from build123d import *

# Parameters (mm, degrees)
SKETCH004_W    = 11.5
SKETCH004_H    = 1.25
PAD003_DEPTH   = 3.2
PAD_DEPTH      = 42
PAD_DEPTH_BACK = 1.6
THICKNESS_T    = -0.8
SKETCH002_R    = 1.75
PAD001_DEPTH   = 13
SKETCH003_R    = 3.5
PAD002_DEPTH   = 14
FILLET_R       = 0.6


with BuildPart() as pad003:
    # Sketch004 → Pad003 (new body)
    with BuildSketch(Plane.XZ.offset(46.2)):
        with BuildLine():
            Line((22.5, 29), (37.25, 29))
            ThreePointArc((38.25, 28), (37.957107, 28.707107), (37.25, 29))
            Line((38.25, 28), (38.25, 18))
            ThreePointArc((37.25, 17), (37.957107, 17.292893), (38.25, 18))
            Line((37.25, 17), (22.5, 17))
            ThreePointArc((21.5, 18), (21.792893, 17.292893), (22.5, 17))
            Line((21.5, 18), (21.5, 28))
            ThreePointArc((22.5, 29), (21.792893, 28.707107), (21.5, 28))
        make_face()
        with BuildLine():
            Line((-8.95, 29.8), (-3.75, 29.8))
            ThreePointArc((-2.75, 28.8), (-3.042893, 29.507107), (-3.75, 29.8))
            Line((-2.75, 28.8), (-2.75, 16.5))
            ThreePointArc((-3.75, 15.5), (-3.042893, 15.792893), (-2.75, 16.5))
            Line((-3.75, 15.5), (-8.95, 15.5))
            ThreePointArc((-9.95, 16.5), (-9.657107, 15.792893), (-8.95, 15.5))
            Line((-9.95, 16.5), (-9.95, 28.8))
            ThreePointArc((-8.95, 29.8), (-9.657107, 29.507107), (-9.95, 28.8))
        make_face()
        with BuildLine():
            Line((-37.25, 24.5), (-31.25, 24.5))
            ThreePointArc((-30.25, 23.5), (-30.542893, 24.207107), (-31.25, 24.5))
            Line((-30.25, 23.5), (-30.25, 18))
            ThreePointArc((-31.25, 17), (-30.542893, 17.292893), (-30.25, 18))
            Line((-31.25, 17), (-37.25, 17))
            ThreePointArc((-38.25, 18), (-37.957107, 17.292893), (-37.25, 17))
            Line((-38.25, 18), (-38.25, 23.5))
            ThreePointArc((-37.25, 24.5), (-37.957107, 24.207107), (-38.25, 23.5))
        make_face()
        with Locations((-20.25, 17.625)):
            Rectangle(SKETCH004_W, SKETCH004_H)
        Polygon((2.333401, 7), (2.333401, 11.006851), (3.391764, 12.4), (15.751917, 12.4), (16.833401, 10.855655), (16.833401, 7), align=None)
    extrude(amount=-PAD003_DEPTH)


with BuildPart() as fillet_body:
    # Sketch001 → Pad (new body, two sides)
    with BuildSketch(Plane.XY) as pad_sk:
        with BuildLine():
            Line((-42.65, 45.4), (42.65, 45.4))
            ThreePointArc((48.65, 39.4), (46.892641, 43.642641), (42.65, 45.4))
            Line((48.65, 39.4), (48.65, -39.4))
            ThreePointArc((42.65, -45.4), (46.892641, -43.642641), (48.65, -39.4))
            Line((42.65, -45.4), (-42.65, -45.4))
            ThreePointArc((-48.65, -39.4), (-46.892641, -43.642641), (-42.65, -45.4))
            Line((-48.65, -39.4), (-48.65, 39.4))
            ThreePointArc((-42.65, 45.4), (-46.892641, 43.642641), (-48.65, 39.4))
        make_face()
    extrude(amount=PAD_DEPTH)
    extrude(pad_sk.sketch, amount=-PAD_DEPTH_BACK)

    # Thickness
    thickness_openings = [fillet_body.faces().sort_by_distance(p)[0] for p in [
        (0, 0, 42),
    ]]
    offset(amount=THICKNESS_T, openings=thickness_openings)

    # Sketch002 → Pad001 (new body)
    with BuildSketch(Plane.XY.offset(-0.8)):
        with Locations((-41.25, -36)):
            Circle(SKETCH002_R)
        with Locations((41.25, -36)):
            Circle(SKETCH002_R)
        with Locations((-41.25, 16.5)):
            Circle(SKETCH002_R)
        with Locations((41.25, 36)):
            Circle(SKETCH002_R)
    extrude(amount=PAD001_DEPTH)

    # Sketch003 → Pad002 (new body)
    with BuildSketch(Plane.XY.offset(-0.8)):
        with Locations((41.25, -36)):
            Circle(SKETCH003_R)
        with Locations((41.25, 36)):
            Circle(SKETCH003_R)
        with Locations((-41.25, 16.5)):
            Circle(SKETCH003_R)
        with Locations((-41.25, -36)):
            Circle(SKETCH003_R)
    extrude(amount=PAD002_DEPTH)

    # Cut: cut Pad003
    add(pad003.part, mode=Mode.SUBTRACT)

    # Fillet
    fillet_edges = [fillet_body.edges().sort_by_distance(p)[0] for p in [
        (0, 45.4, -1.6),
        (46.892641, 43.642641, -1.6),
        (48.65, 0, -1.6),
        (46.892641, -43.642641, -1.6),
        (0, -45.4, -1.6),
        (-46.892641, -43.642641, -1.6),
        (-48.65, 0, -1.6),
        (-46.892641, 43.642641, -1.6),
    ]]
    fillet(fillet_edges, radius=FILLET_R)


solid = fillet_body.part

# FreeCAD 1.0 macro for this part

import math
import FreeCAD as App
import Part
import Sketcher
Q = App.Units.Quantity


def edges_at(feature, points):
    """Names of the edges that pass closest to the given points."""
    edges = feature.Shape.Edges
    near = lambda p: min(range(len(edges)), key=lambda i: edges[i].distToShape(Part.Vertex(*p))[0])
    return sorted({f"Edge{near(p) + 1}" for p in points})


def faces_at(feature, points):
    """Names of the faces that lie closest to the given points."""
    faces = feature.Shape.Faces
    near = lambda p: min(range(len(faces)), key=lambda i: faces[i].distToShape(Part.Vertex(*p))[0])
    return sorted({f"Face{near(p) + 1}" for p in points})


def add_polygon(sketch, points):
    """Adds a closed chain of lines whose ends are joined by coincident constraints."""
    first, n = sketch.GeometryCount, len(points)
    for a, b in zip(points, points[1:] + points[:1]):
        sketch.addGeometry(Part.LineSegment(App.Vector(*a, 0), App.Vector(*b, 0)), False)
    for i in range(n):
        sketch.addConstraint(Sketcher.Constraint("Coincident", first + i, 2, first + (i + 1) % n, 1))

doc = App.newDocument("Part")
body = doc.addObject("PartDesign::Body", "Body")
body.AllowCompound = True

sketch1 = body.newObject("Sketcher::SketchObject", "Sketch")
sketch1.AttachmentSupport = (doc.getObject("XZ_Plane"), [""])
sketch1.MapMode = "FlatFace"
sketch1.AttachmentOffset = App.Placement(App.Vector(0, 0, 46.2), App.Rotation())
sketch1.addGeometry(Part.LineSegment(App.Vector(37.2, 29, 0), App.Vector(22.5, 29, 0)), False)
sketch1.addGeometry(Part.ArcOfCircle(Part.Circle(App.Vector(22.5, 28, 0), App.Vector(0, 0, 1), 1), math.radians(90), math.radians(180)), False)
sketch1.addGeometry(Part.LineSegment(App.Vector(21.5, 28, 0), App.Vector(21.5, 18, 0)), False)
sketch1.addGeometry(Part.ArcOfCircle(Part.Circle(App.Vector(22.5, 18, 0), App.Vector(0, 0, 1), 1), math.radians(180), math.radians(270)), False)
sketch1.addGeometry(Part.LineSegment(App.Vector(22.5, 17, 0), App.Vector(37.2, 17, 0)), False)
sketch1.addGeometry(Part.ArcOfCircle(Part.Circle(App.Vector(37.3, 18, 0), App.Vector(0, 0, 1), 1), math.radians(-90), math.radians(0)), False)
sketch1.addGeometry(Part.LineSegment(App.Vector(38.2, 18, 0), App.Vector(38.2, 28, 0)), False)
sketch1.addGeometry(Part.ArcOfCircle(Part.Circle(App.Vector(37.3, 28, 0), App.Vector(0, 0, 1), 1), math.radians(0), math.radians(90)), False)
sketch1.addGeometry(Part.LineSegment(App.Vector(-3.8, 29.8, 0), App.Vector(-8.9, 29.8, 0)), False)
sketch1.addGeometry(Part.ArcOfCircle(Part.Circle(App.Vector(-9, 28.8, 0), App.Vector(0, 0, 1), 1), math.radians(90), math.radians(180)), False)
sketch1.addGeometry(Part.LineSegment(App.Vector(-9.9, 28.8, 0), App.Vector(-9.9, 16.5, 0)), False)
sketch1.addGeometry(Part.ArcOfCircle(Part.Circle(App.Vector(-9, 16.5, 0), App.Vector(0, 0, 1), 1), math.radians(180), math.radians(270)), False)
sketch1.addGeometry(Part.LineSegment(App.Vector(-8.9, 15.5, 0), App.Vector(-3.8, 15.5, 0)), False)
sketch1.addGeometry(Part.ArcOfCircle(Part.Circle(App.Vector(-3.7, 16.5, 0), App.Vector(0, 0, 1), 1), math.radians(-90), math.radians(0)), False)
sketch1.addGeometry(Part.LineSegment(App.Vector(-2.8, 16.5, 0), App.Vector(-2.8, 28.8, 0)), False)
sketch1.addGeometry(Part.ArcOfCircle(Part.Circle(App.Vector(-3.7, 28.8, 0), App.Vector(0, 0, 1), 1), math.radians(0), math.radians(90)), False)
sketch1.addGeometry(Part.LineSegment(App.Vector(-31.2, 24.5, 0), App.Vector(-37.2, 24.5, 0)), False)
sketch1.addGeometry(Part.ArcOfCircle(Part.Circle(App.Vector(-37.3, 23.5, 0), App.Vector(0, 0, 1), 1), math.radians(90), math.radians(180)), False)
sketch1.addGeometry(Part.LineSegment(App.Vector(-38.2, 23.5, 0), App.Vector(-38.2, 18, 0)), False)
sketch1.addGeometry(Part.ArcOfCircle(Part.Circle(App.Vector(-37.3, 18, 0), App.Vector(0, 0, 1), 1), math.radians(180), math.radians(270)), False)
sketch1.addGeometry(Part.LineSegment(App.Vector(-37.2, 17, 0), App.Vector(-31.2, 17, 0)), False)
sketch1.addGeometry(Part.ArcOfCircle(Part.Circle(App.Vector(-31.2, 18, 0), App.Vector(0, 0, 1), 1), math.radians(-90), math.radians(0)), False)
sketch1.addGeometry(Part.LineSegment(App.Vector(-30.2, 18, 0), App.Vector(-30.2, 23.5, 0)), False)
sketch1.addGeometry(Part.ArcOfCircle(Part.Circle(App.Vector(-31.2, 23.5, 0), App.Vector(0, 0, 1), 1), math.radians(0), math.radians(90)), False)
add_polygon(sketch1, [(-26, 18.2), (-26, 17), (-14.5, 17), (-14.5, 18.2)])
add_polygon(sketch1, [(2.3, 11), (2.3, 7), (16.8, 7), (16.8, 10.9), (15.8, 12.4), (3.4, 12.4)])
sketch1.addConstraint([
    Sketcher.Constraint("Tangent", 0, 2, 1, 1),
    Sketcher.Constraint("Tangent", 1, 2, 2, 1),
    Sketcher.Constraint("Tangent", 2, 2, 3, 1),
    Sketcher.Constraint("Tangent", 3, 2, 4, 1),
    Sketcher.Constraint("Tangent", 4, 2, 5, 1),
    Sketcher.Constraint("Tangent", 5, 2, 6, 1),
    Sketcher.Constraint("Tangent", 6, 2, 7, 1),
    Sketcher.Constraint("Tangent", 7, 2, 0, 1),
    Sketcher.Constraint("Tangent", 8, 2, 9, 1),
    Sketcher.Constraint("Tangent", 9, 2, 10, 1),
    Sketcher.Constraint("Tangent", 10, 2, 11, 1),
    Sketcher.Constraint("Tangent", 11, 2, 12, 1),
    Sketcher.Constraint("Tangent", 12, 2, 13, 1),
    Sketcher.Constraint("Tangent", 13, 2, 14, 1),
    Sketcher.Constraint("Tangent", 14, 2, 15, 1),
    Sketcher.Constraint("Tangent", 15, 2, 8, 1),
    Sketcher.Constraint("Tangent", 16, 2, 17, 1),
    Sketcher.Constraint("Tangent", 17, 2, 18, 1),
    Sketcher.Constraint("Tangent", 18, 2, 19, 1),
    Sketcher.Constraint("Tangent", 19, 2, 20, 1),
    Sketcher.Constraint("Tangent", 20, 2, 21, 1),
    Sketcher.Constraint("Tangent", 21, 2, 22, 1),
    Sketcher.Constraint("Tangent", 22, 2, 23, 1),
    Sketcher.Constraint("Tangent", 23, 2, 16, 1),
    Sketcher.Constraint("Horizontal", 0),
    Sketcher.Constraint("Vertical", 2),
    Sketcher.Constraint("Horizontal", 4),
    Sketcher.Constraint("Vertical", 6),
    Sketcher.Constraint("Horizontal", 8),
    Sketcher.Constraint("Vertical", 10),
    Sketcher.Constraint("Horizontal", 12),
    Sketcher.Constraint("Vertical", 14),
    Sketcher.Constraint("Horizontal", 16),
    Sketcher.Constraint("Vertical", 18),
    Sketcher.Constraint("Horizontal", 20),
    Sketcher.Constraint("Vertical", 22),
    Sketcher.Constraint("Vertical", 24),
    Sketcher.Constraint("Horizontal", 25),
    Sketcher.Constraint("Vertical", 26),
    Sketcher.Constraint("Horizontal", 27),
    Sketcher.Constraint("Vertical", 28),
    Sketcher.Constraint("Horizontal", 29),
    Sketcher.Constraint("Vertical", 30),
    Sketcher.Constraint("Horizontal", 32),
    Sketcher.Constraint("Equal", 1, 3),
    Sketcher.Constraint("Equal", 3, 5),
    Sketcher.Constraint("Equal", 5, 7),
    Sketcher.Constraint("Equal", 7, 9),
    Sketcher.Constraint("Equal", 9, 11),
    Sketcher.Constraint("Equal", 11, 13),
    Sketcher.Constraint("Equal", 13, 15),
    Sketcher.Constraint("Equal", 15, 17),
    Sketcher.Constraint("Equal", 17, 19),
    Sketcher.Constraint("Equal", 19, 21),
    Sketcher.Constraint("Equal", 21, 23),
    Sketcher.Constraint("Symmetric", 5, 3, 19, 3, -2),
    Sketcher.Constraint("Horizontal", 20, 2, 24, 2),
    Sketcher.Constraint("Radius", 1, Q("0.999999 mm")),
    Sketcher.Constraint("DistanceX", 16, 2, 16, 1, Q("6 mm")),
    Sketcher.Constraint("DistanceY", 2, 2, 2, 1, Q("10 mm")),
    Sketcher.Constraint("DistanceX", 8, 2, 8, 1, Q("5.2 mm")),
    Sketcher.Constraint("DistanceX", 25, 1, 25, 2, Q("11.5 mm")),
    Sketcher.Constraint("DistanceX", 29, 1, 29, 2, Q("14.5 mm")),
    Sketcher.Constraint("DistanceY", 10, 2, 10, 1, Q("12.3 mm")),
    Sketcher.Constraint("DistanceY", 18, 2, 18, 1, Q("5.5 mm")),
    Sketcher.Constraint("DistanceY", -1, 1, 1, 3, Q("28.000001 mm")),
    Sketcher.Constraint("DistanceX", 24, 2, -1, 1, Q("26 mm")),
    Sketcher.Constraint("DistanceY", -1, 1, 28, 2, Q("7 mm")),
    Sketcher.Constraint("DistanceX", 13, 3, 5, 3, Q("41 mm")),
    Sketcher.Constraint("DistanceY", 11, 3, 17, 3, Q("7.000001 mm")),
    Sketcher.Constraint("DistanceX", 0, 2, 0, 1, Q("14.75 mm")),
    Sketcher.Constraint("DistanceY", 24, 2, 24, 1, Q("1.25 mm")),
    Sketcher.Constraint("DistanceX", -1, 1, 1, 3, Q("22.499999 mm")),
    Sketcher.Constraint("DistanceY", -1, 1, 31, 2, Q("12.4 mm")),
    Sketcher.Constraint("DistanceY", 28, 2, 28, 1, Q("4.006851 mm")),
    Sketcher.Constraint("DistanceX", -1, 1, 28, 2, Q("2.333401 mm")),
    Sketcher.Constraint("Distance", 33, Q("1.74957 mm")),
    Sketcher.Constraint("DistanceX", 32, 2, 32, 1, Q("12.360153 mm")),
    Sketcher.Constraint("DistanceY", 30, 1, 30, 2, Q("3.855655 mm")),
])
pad1 = body.newObject("PartDesign::Pad", "Pad")
pad1.Profile = sketch1
pad1.Length = 3.2
pad1.Reversed = True
body2 = doc.addObject("PartDesign::Body", "Body001")

sketch2 = body2.newObject("Sketcher::SketchObject", "Sketch001")
sketch2.AttachmentSupport = (doc.getObject("XY_Plane001"), [""])
sketch2.MapMode = "FlatFace"
sketch2.addGeometry([
    Part.LineSegment(App.Vector(43, 45, 0), App.Vector(-43, 45, 0)),
    Part.ArcOfCircle(Part.Circle(App.Vector(-43, 39, 0), App.Vector(0, 0, 1), 6), math.radians(90), math.radians(180)),
    Part.LineSegment(App.Vector(-49, 39, 0), App.Vector(-49, -39, 0)),
    Part.ArcOfCircle(Part.Circle(App.Vector(-43, -39, 0), App.Vector(0, 0, 1), 6), math.radians(180), math.radians(270)),
    Part.LineSegment(App.Vector(-43, -45, 0), App.Vector(43, -45, 0)),
    Part.ArcOfCircle(Part.Circle(App.Vector(43, -39, 0), App.Vector(0, 0, 1), 6), math.radians(-90), math.radians(0)),
    Part.LineSegment(App.Vector(49, -39, 0), App.Vector(49, 39, 0)),
    Part.ArcOfCircle(Part.Circle(App.Vector(43, 39, 0), App.Vector(0, 0, 1), 6), math.radians(0), math.radians(90)),
], False)
sketch2.addConstraint([
    Sketcher.Constraint("Tangent", 0, 2, 1, 1),
    Sketcher.Constraint("Tangent", 1, 2, 2, 1),
    Sketcher.Constraint("Tangent", 2, 2, 3, 1),
    Sketcher.Constraint("Tangent", 3, 2, 4, 1),
    Sketcher.Constraint("Tangent", 4, 2, 5, 1),
    Sketcher.Constraint("Tangent", 5, 2, 6, 1),
    Sketcher.Constraint("Tangent", 6, 2, 7, 1),
    Sketcher.Constraint("Tangent", 7, 2, 0, 1),
    Sketcher.Constraint("Horizontal", 0),
    Sketcher.Constraint("Vertical", 2),
    Sketcher.Constraint("Horizontal", 4),
    Sketcher.Constraint("Vertical", 6),
    Sketcher.Constraint("Equal", 1, 3),
    Sketcher.Constraint("Equal", 3, 5),
    Sketcher.Constraint("Equal", 5, 7),
    Sketcher.Constraint("Symmetric", 1, 3, 5, 3, -1, 1),
    Sketcher.Constraint("Radius", 1, Q("5.999999 mm")),
    Sketcher.Constraint("DistanceX", 0, 2, 0, 1, Q("85.3 mm")),
    Sketcher.Constraint("DistanceY", 2, 2, 2, 1, Q("78.8 mm")),
])
pad2 = body2.newObject("PartDesign::Pad", "Pad001")
pad2.Profile = sketch2
pad2.Type = "TwoLengths"
pad2.Length = 42
pad2.Length2 = 1.6
doc.recompute()

thickness = body2.newObject("PartDesign::Thickness", "Thickness")
thickness.Base = (pad2, faces_at(pad2, [(0, 0, 42)]))
thickness.Value = 0.8
thickness.Reversed = True
thickness.Join = "Arc"

sketch3 = body2.newObject("Sketcher::SketchObject", "Sketch002")
sketch3.AttachmentSupport = (doc.getObject("XY_Plane001"), [""])
sketch3.MapMode = "FlatFace"
sketch3.AttachmentOffset = App.Placement(App.Vector(0, 0, -0.8), App.Rotation())
sketch3.addGeometry([
    Part.Circle(App.Vector(-41.2, -36, 0), App.Vector(0, 0, 1), 1.8),
    Part.Circle(App.Vector(41.2, -36, 0), App.Vector(0, 0, 1), 1.8),
    Part.Circle(App.Vector(-41.2, 16.5, 0), App.Vector(0, 0, 1), 1.8),
    Part.Circle(App.Vector(41.2, 36, 0), App.Vector(0, 0, 1), 1.8),
], False)
sketch3.addConstraint([
    Sketcher.Constraint("Equal", 0, 1),
    Sketcher.Constraint("Equal", 1, 2),
    Sketcher.Constraint("Equal", 2, 3),
    Sketcher.Constraint("Symmetric", 0, 3, 3, 3, -1, 1),
    Sketcher.Constraint("Symmetric", 0, 3, 1, 3, -2),
    Sketcher.Constraint("Vertical", 0, 3, 2, 3),
    Sketcher.Constraint("Diameter", 0, Q("3.5 mm")),
    Sketcher.Constraint("DistanceY", 0, 3, -1, 1, Q("36 mm")),
    Sketcher.Constraint("DistanceY", -1, 1, 2, 3, Q("16.5 mm")),
    Sketcher.Constraint("DistanceX", 0, 3, 1, 3, Q("82.5 mm")),
])
pad3 = body2.newObject("PartDesign::Pad", "Pad002")
pad3.Profile = sketch3
pad3.Length = 13

sketch4 = body2.newObject("Sketcher::SketchObject", "Sketch003")
sketch4.AttachmentSupport = (doc.getObject("XY_Plane001"), [""])
sketch4.MapMode = "FlatFace"
sketch4.AttachmentOffset = App.Placement(App.Vector(0, 0, -0.8), App.Rotation())
sketch4.addGeometry([
    Part.Circle(App.Vector(41.2, -36, 0), App.Vector(0, 0, 1), 3.5),
    Part.Circle(App.Vector(41.2, 36, 0), App.Vector(0, 0, 1), 3.5),
    Part.Circle(App.Vector(-41.2, 16.5, 0), App.Vector(0, 0, 1), 3.5),
    Part.Circle(App.Vector(-41.2, -36, 0), App.Vector(0, 0, 1), 3.5),
], False)
sketch4.addConstraint([
    Sketcher.Constraint("Equal", 0, 1),
    Sketcher.Constraint("Equal", 1, 2),
    Sketcher.Constraint("Equal", 2, 3),
    Sketcher.Constraint("Symmetric", 1, 3, 3, 3, -1, 1),
    Sketcher.Constraint("Symmetric", 0, 3, 3, 3, -2),
    Sketcher.Constraint("Vertical", 2, 3, 3, 3),
    Sketcher.Constraint("Diameter", 0, Q("7 mm")),
    Sketcher.Constraint("DistanceY", 0, 3, -1, 1, Q("36 mm")),
    Sketcher.Constraint("DistanceY", -1, 1, 2, 3, Q("16.5 mm")),
    Sketcher.Constraint("DistanceX", 2, 3, 1, 3, Q("82.5 mm")),
])
pad4 = body2.newObject("PartDesign::Pad", "Pad003")
pad4.Profile = sketch4
pad4.Length = 14
doc.recompute()

boolean = body2.newObject("PartDesign::Boolean", "Boolean")
boolean.Type = "Cut"
boolean.addObjects([body])
doc.recompute()

fillet = body2.newObject("PartDesign::Fillet", "Fillet")
fillet.Base = (boolean, edges_at(boolean, [
    (0, 45.4, -1.6),
    (46.893, 43.643, -1.6),
    (48.65, 0, -1.6),
    (46.893, -43.643, -1.6),
    (0, -45.4, -1.6),
    (-46.893, -43.643, -1.6),
    (-48.65, 0, -1.6),
    (-46.893, 43.643, -1.6),
]))
fillet.Radius = 0.6

doc.recompute()
